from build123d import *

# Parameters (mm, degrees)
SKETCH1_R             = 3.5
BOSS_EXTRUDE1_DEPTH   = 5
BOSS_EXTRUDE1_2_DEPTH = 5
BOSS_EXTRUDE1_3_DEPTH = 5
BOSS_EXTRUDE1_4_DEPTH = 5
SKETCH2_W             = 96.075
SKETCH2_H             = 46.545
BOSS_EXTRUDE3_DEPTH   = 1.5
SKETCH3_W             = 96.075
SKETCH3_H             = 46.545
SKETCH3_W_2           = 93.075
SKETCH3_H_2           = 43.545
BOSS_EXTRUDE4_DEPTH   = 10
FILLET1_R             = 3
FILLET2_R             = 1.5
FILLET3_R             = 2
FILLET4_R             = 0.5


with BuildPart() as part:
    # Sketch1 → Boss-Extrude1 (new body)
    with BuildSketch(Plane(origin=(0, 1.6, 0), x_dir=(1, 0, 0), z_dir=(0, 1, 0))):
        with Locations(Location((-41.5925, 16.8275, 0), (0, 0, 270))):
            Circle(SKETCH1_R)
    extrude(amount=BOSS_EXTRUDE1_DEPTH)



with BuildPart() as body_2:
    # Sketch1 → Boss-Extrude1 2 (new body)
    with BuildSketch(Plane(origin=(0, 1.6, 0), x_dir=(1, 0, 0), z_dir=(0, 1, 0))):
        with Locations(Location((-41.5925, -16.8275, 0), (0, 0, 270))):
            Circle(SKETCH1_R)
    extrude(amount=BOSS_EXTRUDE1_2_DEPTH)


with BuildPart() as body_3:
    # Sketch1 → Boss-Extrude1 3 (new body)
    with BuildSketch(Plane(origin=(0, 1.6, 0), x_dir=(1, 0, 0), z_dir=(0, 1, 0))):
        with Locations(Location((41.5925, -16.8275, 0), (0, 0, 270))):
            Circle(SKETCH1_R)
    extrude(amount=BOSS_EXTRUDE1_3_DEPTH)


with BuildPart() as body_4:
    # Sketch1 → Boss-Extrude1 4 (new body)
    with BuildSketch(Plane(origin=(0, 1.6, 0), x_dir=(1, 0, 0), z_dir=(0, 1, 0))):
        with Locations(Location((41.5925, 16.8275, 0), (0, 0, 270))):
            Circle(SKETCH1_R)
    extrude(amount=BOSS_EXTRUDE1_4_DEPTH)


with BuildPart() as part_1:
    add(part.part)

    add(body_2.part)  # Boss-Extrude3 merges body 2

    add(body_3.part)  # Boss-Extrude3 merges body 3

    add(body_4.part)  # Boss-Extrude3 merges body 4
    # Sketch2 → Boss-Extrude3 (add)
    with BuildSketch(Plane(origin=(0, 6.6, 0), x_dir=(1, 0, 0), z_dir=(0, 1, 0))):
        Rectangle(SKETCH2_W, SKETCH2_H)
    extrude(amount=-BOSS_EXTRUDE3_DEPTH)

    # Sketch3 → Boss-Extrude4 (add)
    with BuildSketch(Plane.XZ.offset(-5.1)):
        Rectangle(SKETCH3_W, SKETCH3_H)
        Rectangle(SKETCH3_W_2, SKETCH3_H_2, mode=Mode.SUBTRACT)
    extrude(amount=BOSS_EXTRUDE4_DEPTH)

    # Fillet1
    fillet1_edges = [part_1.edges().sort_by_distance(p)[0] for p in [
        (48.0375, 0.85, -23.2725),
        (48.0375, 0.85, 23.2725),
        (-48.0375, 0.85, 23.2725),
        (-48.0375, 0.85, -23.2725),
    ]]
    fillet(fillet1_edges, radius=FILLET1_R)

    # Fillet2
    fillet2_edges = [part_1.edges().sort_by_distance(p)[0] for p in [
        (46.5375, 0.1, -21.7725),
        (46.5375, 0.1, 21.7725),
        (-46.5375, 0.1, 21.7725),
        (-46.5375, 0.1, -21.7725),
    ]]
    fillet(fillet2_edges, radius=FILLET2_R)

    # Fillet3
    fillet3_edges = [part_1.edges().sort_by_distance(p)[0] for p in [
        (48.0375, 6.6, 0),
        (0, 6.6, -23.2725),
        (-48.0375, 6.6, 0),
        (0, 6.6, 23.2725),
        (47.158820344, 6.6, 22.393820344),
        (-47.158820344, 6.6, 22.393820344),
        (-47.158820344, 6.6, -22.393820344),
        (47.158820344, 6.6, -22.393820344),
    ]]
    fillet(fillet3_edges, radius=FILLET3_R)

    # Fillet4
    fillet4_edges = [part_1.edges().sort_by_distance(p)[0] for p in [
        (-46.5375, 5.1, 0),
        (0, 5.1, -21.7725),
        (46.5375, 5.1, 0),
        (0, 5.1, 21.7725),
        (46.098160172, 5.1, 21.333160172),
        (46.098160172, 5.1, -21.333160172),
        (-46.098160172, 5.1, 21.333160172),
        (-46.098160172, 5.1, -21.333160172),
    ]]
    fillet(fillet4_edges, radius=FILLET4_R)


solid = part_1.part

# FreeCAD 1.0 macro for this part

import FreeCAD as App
import Part
import Sketcher
from FreeCAD import Vector


def edges_at(feature, points):
    """Names of the edges that pass closest to the given points."""
    edges = feature.Shape.Edges
    near = lambda p: min(range(len(edges)), key=lambda i: edges[i].distToShape(Part.Vertex(*p))[0])
    return sorted({f"Edge{near(p) + 1}" for p in points})


def add_polygon(sketch, points):
    """Adds a closed chain of lines whose ends are joined by coincident constraints."""
    first, n = sketch.GeometryCount, len(points)
    for a, b in zip(points, points[1:] + points[:1]):
        sketch.addGeometry(Part.LineSegment(App.Vector(*a, 0), App.Vector(*b, 0)), False)
    for i in range(n):
        sketch.addConstraint(Sketcher.Constraint("Coincident", first + i, 2, first + (i + 1) % n, 1))

doc = App.newDocument("Part")
params = doc.addObject("Spreadsheet::Sheet", "Params")
for row, (alias, value) in enumerate([
    ("sketch1_diameter", "7 mm"),
    ("pad1_length", "5 mm"),
    ("sketch2_diameter", "7 mm"),
    ("pad2_length", "5 mm"),
    ("sketch3_diameter", "7 mm"),
    ("pad3_length", "5 mm"),
    ("sketch4_diameter", "7 mm"),
    ("pad4_length", "5 mm"),
    ("pad5_length", "1.5 mm"),
    ("pad6_length", "10 mm"),
    ("fillet_radius", "3 mm"),
    ("fillet2_radius", "1.5 mm"),
    ("fillet3_radius", "2 mm"),
    ("fillet4_radius", "0.5 mm"),
], start=1):
    params.set(f"A{row}", alias)
    params.set(f"B{row}", "=" + value)
    params.setAlias(f"B{row}", alias)

body = doc.addObject("PartDesign::Body", "Body")

sketch1 = body.newObject("Sketcher::SketchObject", "Sketch")
sketch1.AttachmentSupport = (doc.getObject("XZ_Plane"), [""])
sketch1.MapMode = "FlatFace"
sketch1.AttachmentOffset = App.Placement(Vector(0, 0, -1.6), App.Rotation())
sketch1.addGeometry(Part.Circle(Vector(-41.5925, -16.8275, 0), Vector(0, 0, 1), 3.5), False)
sketch1.addConstraint([
    Sketcher.Constraint("Diameter", 0, 7.0),
    Sketcher.Constraint("DistanceX", 0, 3, -1, 1, 41.5925),
    Sketcher.Constraint("DistanceY", 0, 3, -1, 1, 16.8275),
])
sketch1.setExpression("Constraints[0]", "Params.sketch1_diameter")
pad1 = body.newObject("PartDesign::Pad", "Pad")
pad1.Profile = sketch1
pad1.setExpression("Length", "Params.pad1_length")
pad1.Reversed = True
body2 = doc.addObject("PartDesign::Body", "Body001")

sketch2 = body2.newObject("Sketcher::SketchObject", "Sketch001")
sketch2.AttachmentSupport = (doc.getObject("XZ_Plane001"), [""])
sketch2.MapMode = "FlatFace"
sketch2.AttachmentOffset = App.Placement(Vector(0, 0, -1.6), App.Rotation())
sketch2.addGeometry(Part.Circle(Vector(-41.5925, 16.8275, 0), Vector(0, 0, 1), 3.5), False)
sketch2.addConstraint([
    Sketcher.Constraint("Diameter", 0, 7.0),
    Sketcher.Constraint("DistanceX", 0, 3, -1, 1, 41.5925),
    Sketcher.Constraint("DistanceY", -1, 1, 0, 3, 16.8275),
])
sketch2.setExpression("Constraints[0]", "Params.sketch2_diameter")
pad2 = body2.newObject("PartDesign::Pad", "Pad001")
pad2.Profile = sketch2
pad2.setExpression("Length", "Params.pad2_length")
pad2.Reversed = True
body3 = doc.addObject("PartDesign::Body", "Body002")

sketch3 = body3.newObject("Sketcher::SketchObject", "Sketch002")
sketch3.AttachmentSupport = (doc.getObject("XZ_Plane002"), [""])
sketch3.MapMode = "FlatFace"
sketch3.AttachmentOffset = App.Placement(Vector(0, 0, -1.6), App.Rotation())
sketch3.addGeometry(Part.Circle(Vector(41.5925, 16.8275, 0), Vector(0, 0, 1), 3.5), False)
sketch3.addConstraint([
    Sketcher.Constraint("Diameter", 0, 7.0),
    Sketcher.Constraint("DistanceX", -1, 1, 0, 3, 41.5925),
    Sketcher.Constraint("DistanceY", -1, 1, 0, 3, 16.8275),
])
sketch3.setExpression("Constraints[0]", "Params.sketch3_diameter")
pad3 = body3.newObject("PartDesign::Pad", "Pad002")
pad3.Profile = sketch3
pad3.setExpression("Length", "Params.pad3_length")
pad3.Reversed = True
body4 = doc.addObject("PartDesign::Body", "Body003")

sketch4 = body4.newObject("Sketcher::SketchObject", "Sketch003")
sketch4.AttachmentSupport = (doc.getObject("XZ_Plane003"), [""])
sketch4.MapMode = "FlatFace"
sketch4.AttachmentOffset = App.Placement(Vector(0, 0, -1.6), App.Rotation())
sketch4.addGeometry(Part.Circle(Vector(41.5925, -16.8275, 0), Vector(0, 0, 1), 3.5), False)
sketch4.addConstraint([
    Sketcher.Constraint("Diameter", 0, 7.0),
    Sketcher.Constraint("DistanceX", -1, 1, 0, 3, 41.5925),
    Sketcher.Constraint("DistanceY", 0, 3, -1, 1, 16.8275),
])
sketch4.setExpression("Constraints[0]", "Params.sketch4_diameter")
pad4 = body4.newObject("PartDesign::Pad", "Pad003")
pad4.Profile = sketch4
pad4.setExpression("Length", "Params.pad4_length")
pad4.Reversed = True
body.AllowCompound = True
doc.recompute()

boolean = body.newObject("PartDesign::Boolean", "Boolean")
boolean.Type = "Fuse"
boolean.addObjects([body2])
doc.recompute()

boolean2 = body.newObject("PartDesign::Boolean", "Boolean001")
boolean2.Type = "Fuse"
boolean2.addObjects([body3])
doc.recompute()

boolean3 = body.newObject("PartDesign::Boolean", "Boolean002")
boolean3.Type = "Fuse"
boolean3.addObjects([body4])

sketch5 = body.newObject("Sketcher::SketchObject", "Sketch004")
sketch5.AttachmentSupport = (doc.getObject("XZ_Plane"), [""])
sketch5.MapMode = "FlatFace"
sketch5.AttachmentOffset = App.Placement(Vector(0, 0, -6.6), App.Rotation())
add_polygon(sketch5, [(-48.0375, -23.2725), (-48.0375, 23.2725), (48.0375, 23.2725), (48.0375, -23.2725)])
sketch5.addConstraint([
    Sketcher.Constraint("Vertical", 0),
    Sketcher.Constraint("Horizontal", 1),
    Sketcher.Constraint("Vertical", 2),
    Sketcher.Constraint("Horizontal", 3),
    Sketcher.Constraint("Symmetric", 0, 2, 2, 2, -1, 1),
    Sketcher.Constraint("DistanceX", 1, 1, 1, 2, 96.075),
    Sketcher.Constraint("DistanceY", 0, 1, 0, 2, 46.545),
])
pad5 = body.newObject("PartDesign::Pad", "Pad004")
pad5.Profile = sketch5
pad5.setExpression("Length", "Params.pad5_length")

sketch6 = body.newObject("Sketcher::SketchObject", "Sketch005")
sketch6.AttachmentSupport = (doc.getObject("XZ_Plane"), [""])
sketch6.MapMode = "FlatFace"
sketch6.AttachmentOffset = App.Placement(Vector(0, 0, -5.1), App.Rotation())
add_polygon(sketch6, [(-48.0375, 23.2725), (-48.0375, -23.2725), (48.0375, -23.2725), (48.0375, 23.2725)])
add_polygon(sketch6, [(46.5375, -21.7725), (-46.5375, -21.7725), (-46.5375, 21.7725), (46.5375, 21.7725)])
sketch6.addConstraint([
    Sketcher.Constraint("Vertical", 0),
    Sketcher.Constraint("Horizontal", 1),
    Sketcher.Constraint("Vertical", 2),
    Sketcher.Constraint("Horizontal", 3),
    Sketcher.Constraint("Horizontal", 4),
    Sketcher.Constraint("Vertical", 5),
    Sketcher.Constraint("Horizontal", 6),
    Sketcher.Constraint("Vertical", 7),
    Sketcher.Constraint("Symmetric", 0, 2, 2, 2, -1, 1),
    Sketcher.Constraint("Symmetric", 4, 2, 6, 2, -1, 1),
    Sketcher.Constraint("DistanceX", 0, 2, 4, 2, 1.5),
    Sketcher.Constraint("DistanceY", 0, 2, 4, 2, 1.5),
    Sketcher.Constraint("DistanceX", 1, 1, 1, 2, 96.075),
    Sketcher.Constraint("DistanceY", 0, 2, 0, 1, 46.545),
])
pad6 = body.newObject("PartDesign::Pad", "Pad005")
pad6.Profile = sketch6
pad6.setExpression("Length", "Params.pad6_length")
doc.recompute()

fillet = body.newObject("PartDesign::Fillet", "Fillet")
fillet.Base = (pad6, edges_at(pad6, [
    (48.038, 0.85, -23.273),
    (48.038, 0.85, 23.273),
    (-48.038, 0.85, 23.273),
    (-48.038, 0.85, -23.273),
]))
fillet.setExpression("Radius", "Params.fillet_radius")
doc.recompute()

fillet2 = body.newObject("PartDesign::Fillet", "Fillet001")
fillet2.Base = (fillet, edges_at(fillet, [
    (46.538, 0.1, -21.773),
    (46.538, 0.1, 21.773),
    (-46.538, 0.1, 21.773),
    (-46.538, 0.1, -21.773),
]))
fillet2.setExpression("Radius", "Params.fillet2_radius")
doc.recompute()

fillet3 = body.newObject("PartDesign::Fillet", "Fillet002")
fillet3.Base = (fillet2, edges_at(fillet2, [
    (48.038, 6.6, 0),
    (0, 6.6, -23.273),
    (-48.038, 6.6, 0),
    (0, 6.6, 23.273),
    (47.159, 6.6, 22.394),
    (-47.159, 6.6, 22.394),
    (-47.159, 6.6, -22.394),
    (47.159, 6.6, -22.394),
]))
fillet3.setExpression("Radius", "Params.fillet3_radius")
doc.recompute()

fillet4 = body.newObject("PartDesign::Fillet", "Fillet003")
fillet4.Base = (fillet3, edges_at(fillet3, [
    (-46.538, 5.1, 0),
    (0, 5.1, -21.773),
    (46.538, 5.1, 0),
    (0, 5.1, 21.773),
    (46.098, 5.1, 21.333),
    (46.098, 5.1, -21.333),
    (-46.098, 5.1, 21.333),
    (-46.098, 5.1, -21.333),
]))
fillet4.setExpression("Radius", "Params.fillet4_radius")

doc.recompute()
